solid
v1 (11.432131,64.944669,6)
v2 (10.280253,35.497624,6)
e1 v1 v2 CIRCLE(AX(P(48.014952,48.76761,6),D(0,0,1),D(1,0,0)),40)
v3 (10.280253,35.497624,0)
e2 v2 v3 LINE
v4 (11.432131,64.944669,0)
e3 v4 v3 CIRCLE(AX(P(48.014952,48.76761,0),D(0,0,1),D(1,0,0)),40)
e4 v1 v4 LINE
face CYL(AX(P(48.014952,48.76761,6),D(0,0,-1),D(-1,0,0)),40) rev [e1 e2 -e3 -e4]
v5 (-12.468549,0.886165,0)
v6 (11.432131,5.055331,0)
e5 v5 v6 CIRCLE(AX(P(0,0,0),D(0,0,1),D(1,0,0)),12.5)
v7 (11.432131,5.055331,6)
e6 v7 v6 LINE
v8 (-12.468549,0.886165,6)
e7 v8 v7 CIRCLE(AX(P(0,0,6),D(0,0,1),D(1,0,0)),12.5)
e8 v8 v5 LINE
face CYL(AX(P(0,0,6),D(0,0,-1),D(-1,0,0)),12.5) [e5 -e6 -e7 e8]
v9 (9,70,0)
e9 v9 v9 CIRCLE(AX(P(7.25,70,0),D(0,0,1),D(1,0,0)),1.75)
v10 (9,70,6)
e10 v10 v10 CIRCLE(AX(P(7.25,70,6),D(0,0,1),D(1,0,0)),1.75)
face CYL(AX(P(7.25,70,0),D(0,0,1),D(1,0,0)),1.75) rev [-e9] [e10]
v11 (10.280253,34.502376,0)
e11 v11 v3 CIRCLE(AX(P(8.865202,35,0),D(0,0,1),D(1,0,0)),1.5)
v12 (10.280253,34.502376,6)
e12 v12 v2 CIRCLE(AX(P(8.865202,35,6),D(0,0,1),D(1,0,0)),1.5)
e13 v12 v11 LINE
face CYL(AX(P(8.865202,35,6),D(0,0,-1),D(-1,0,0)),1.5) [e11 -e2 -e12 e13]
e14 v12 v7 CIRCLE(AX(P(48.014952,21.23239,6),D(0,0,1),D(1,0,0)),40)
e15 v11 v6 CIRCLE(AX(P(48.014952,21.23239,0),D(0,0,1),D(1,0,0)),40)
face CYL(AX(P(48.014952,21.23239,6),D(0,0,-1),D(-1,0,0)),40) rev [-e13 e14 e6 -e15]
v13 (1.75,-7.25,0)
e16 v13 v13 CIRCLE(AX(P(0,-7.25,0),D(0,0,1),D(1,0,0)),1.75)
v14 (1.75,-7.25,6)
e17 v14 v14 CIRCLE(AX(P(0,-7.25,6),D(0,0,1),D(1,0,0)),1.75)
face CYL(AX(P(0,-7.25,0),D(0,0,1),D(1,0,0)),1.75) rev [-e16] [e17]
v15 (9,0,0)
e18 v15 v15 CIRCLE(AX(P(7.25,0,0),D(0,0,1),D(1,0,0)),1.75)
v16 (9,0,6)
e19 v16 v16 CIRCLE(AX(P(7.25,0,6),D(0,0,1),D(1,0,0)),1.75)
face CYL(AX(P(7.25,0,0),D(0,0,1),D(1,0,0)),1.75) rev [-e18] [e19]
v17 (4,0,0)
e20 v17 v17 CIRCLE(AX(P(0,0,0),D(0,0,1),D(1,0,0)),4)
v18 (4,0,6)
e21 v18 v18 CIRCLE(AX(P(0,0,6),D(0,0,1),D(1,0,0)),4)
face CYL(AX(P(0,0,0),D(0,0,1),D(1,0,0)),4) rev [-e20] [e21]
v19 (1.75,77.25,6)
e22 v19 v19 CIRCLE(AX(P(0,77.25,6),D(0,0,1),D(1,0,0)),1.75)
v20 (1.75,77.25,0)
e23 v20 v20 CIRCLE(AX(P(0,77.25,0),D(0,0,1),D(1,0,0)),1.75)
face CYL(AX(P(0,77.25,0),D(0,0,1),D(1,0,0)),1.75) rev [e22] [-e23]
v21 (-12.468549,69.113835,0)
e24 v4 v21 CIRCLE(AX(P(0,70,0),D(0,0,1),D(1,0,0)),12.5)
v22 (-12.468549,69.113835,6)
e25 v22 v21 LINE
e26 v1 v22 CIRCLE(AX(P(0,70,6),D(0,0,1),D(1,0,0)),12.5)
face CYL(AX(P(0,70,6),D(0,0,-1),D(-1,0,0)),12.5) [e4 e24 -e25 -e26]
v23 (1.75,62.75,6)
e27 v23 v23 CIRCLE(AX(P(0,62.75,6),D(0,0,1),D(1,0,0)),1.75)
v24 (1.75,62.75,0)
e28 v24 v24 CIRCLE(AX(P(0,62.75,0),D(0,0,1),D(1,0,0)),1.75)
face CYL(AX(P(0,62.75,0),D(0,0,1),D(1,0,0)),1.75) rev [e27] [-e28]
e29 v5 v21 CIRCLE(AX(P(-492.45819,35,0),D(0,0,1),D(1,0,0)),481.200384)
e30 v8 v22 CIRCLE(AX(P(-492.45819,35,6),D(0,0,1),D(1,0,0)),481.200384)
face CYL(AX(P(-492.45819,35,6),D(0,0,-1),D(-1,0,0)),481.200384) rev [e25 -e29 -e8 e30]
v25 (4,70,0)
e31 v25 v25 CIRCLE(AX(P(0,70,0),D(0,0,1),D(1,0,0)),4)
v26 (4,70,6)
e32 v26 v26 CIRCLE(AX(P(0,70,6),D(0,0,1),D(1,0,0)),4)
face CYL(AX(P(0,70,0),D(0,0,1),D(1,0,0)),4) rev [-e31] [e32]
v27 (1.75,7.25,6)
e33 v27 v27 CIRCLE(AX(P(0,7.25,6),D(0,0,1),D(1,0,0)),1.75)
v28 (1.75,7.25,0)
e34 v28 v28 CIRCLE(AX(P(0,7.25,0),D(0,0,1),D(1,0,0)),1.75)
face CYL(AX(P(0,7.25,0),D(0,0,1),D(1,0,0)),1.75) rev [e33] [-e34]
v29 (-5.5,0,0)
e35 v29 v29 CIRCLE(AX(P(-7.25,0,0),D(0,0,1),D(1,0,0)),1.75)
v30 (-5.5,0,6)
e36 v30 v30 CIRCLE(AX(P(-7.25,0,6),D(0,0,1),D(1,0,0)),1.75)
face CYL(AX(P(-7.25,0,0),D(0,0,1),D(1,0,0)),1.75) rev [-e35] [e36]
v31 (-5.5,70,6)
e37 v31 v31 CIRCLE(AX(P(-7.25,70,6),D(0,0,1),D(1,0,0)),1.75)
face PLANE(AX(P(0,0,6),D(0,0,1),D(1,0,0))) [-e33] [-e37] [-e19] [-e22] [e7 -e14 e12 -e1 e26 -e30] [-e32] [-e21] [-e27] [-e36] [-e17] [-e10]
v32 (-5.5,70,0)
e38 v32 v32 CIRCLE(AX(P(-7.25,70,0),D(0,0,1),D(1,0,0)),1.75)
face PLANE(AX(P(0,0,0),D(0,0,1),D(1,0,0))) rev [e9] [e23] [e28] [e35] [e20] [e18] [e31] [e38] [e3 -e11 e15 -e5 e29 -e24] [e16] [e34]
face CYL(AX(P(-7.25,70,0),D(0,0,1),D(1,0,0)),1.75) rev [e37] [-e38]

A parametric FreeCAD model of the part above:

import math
import FreeCAD as App
import Part
import Sketcher

doc = App.newDocument("Part")
body = doc.addObject("PartDesign::Body", "Body")

# Sketch on XY plane
sketch1 = body.newObject("Sketcher::SketchObject", "Sketch")
sketch1.AttachmentSupport = (doc.getObject("XY_Plane"), [""])
sketch1.MapMode = "FlatFace"
sketch1.addGeometry(Part.ArcOfCircle(Part.Circle(App.Vector(48.014952, 21.23239, 0), App.Vector(0, 0, 1), 40), math.radians(160.624994), math.radians(203.855193)), False)
sketch1.addGeometry(Part.ArcOfCircle(Part.Circle(App.Vector(8.865202, 35, 0), App.Vector(0, 0, 1), 1.5), math.radians(-19.374995), math.radians(19.374996)), False)
sketch1.addGeometry(Part.ArcOfCircle(Part.Circle(App.Vector(48.014952, 48.76761, 0), App.Vector(0, 0, 1), 40), math.radians(156.144807), math.radians(199.375006)), False)
sketch1.addGeometry(Part.ArcOfCircle(Part.Circle(App.Vector(0, 70, 0), App.Vector(0, 0, 1), 12.5), math.radians(-23.855189), math.radians(184.06529)), False)
sketch1.addGeometry(Part.ArcOfCircle(Part.Circle(App.Vector(-492.45819, 35, 0), App.Vector(0, 0, 1), 481.200383), math.radians(0), math.radians(4.065291)), False)
sketch1.addGeometry(Part.ArcOfCircle(Part.Circle(App.Vector(-492.45819, 35, 0), App.Vector(0, 0, 1), 481.200384), math.radians(-4.065291), math.radians(0)), False)
sketch1.addGeometry(Part.ArcOfCircle(Part.Circle(App.Vector(0, 0, 0), App.Vector(0, 0, 1), 12.5), math.radians(175.934703), math.radians(383.855189)), False)
sketch1.addConstraint(Sketcher.Constraint("Tangent", 0, 1, 1, 1))
sketch1.addConstraint(Sketcher.Constraint("Tangent", 1, 2, 2, 2))
sketch1.addConstraint(Sketcher.Constraint("Tangent", 2, 1, 3, 1))
sketch1.addConstraint(Sketcher.Constraint("Tangent", 3, 2, 4, 2))
sketch1.addConstraint(Sketcher.Constraint("Tangent", 4, 1, 5, 2))
sketch1.addConstraint(Sketcher.Constraint("Tangent", 5, 1, 6, 1))
sketch1.addConstraint(Sketcher.Constraint("Tangent", 6, 2, 0, 2))
sketch1.addConstraint(Sketcher.Constraint("Coincident", 6, 3, -1, 1))
sketch1.addConstraint(Sketcher.Constraint("Equal", 0, 2))
sketch1.addConstraint(Sketcher.Constraint("Equal", 4, 5))
sketch1.addConstraint(Sketcher.Constraint("Equal", 3, 6))
sketch1.addConstraint(Sketcher.Constraint("PointOnObject", 3, 3, -2))
sketch1.addConstraint(Sketcher.Constraint("Horizontal", 1, 3, 4, 3))
sketch1.addConstraint(Sketcher.Constraint("Horizontal", 5, 3, 4, 1))
sketch1.addConstraint(Sketcher.Constraint("Radius", 0, 40.0))
sketch1.addConstraint(Sketcher.Constraint("Radius", 1, 1.5))
sketch1.addConstraint(Sketcher.Constraint("Radius", 3, 12.5))
sketch1.addConstraint(Sketcher.Constraint("DistanceY", -1, 1, 1, 3, 35.0))
sketch1.addConstraint(Sketcher.Constraint("Radius", 4, 481.200383))
sketch1.addConstraint(Sketcher.Constraint("DistanceX", -1, 1, 1, 3, 8.865202))
pad1 = body.newObject("PartDesign::Pad", "Pad")
pad1.Profile = sketch1
pad1.Length = 6

# Sketch on XY plane
sketch2 = body.newObject("Sketcher::SketchObject", "Sketch001")
sketch2.AttachmentSupport = (doc.getObject("XY_Plane"), [""])
sketch2.MapMode = "FlatFace"
sketch2.AttachmentOffset = App.Placement(App.Vector(0, 0, 6), App.Rotation())
sketch2.addGeometry(Part.Circle(App.Vector(0, 70, 0), App.Vector(0, 0, 1), 4), False)
sketch2.addGeometry(Part.Circle(App.Vector(0, 0, 0), App.Vector(0, 0, 1), 4), False)
sketch2.addGeometry(Part.Circle(App.Vector(0, 7.25, 0), App.Vector(0, 0, 1), 1.75), False)
sketch2.addGeometry(Part.Circle(App.Vector(7.25, 0, 0), App.Vector(0, 0, 1), 1.75), False)
sketch2.addGeometry(Part.Circle(App.Vector(0, -7.25, 0), App.Vector(0, 0, 1), 1.75), False)
sketch2.addGeometry(Part.Circle(App.Vector(-7.25, 0, 0), App.Vector(0, 0, 1), 1.75), False)
sketch2.addGeometry(Part.Circle(App.Vector(0, 77.25, 0), App.Vector(0, 0, 1), 1.75), False)
sketch2.addGeometry(Part.Circle(App.Vector(7.25, 70, 0), App.Vector(0, 0, 1), 1.75), False)
sketch2.addGeometry(Part.Circle(App.Vector(0, 62.75, 0), App.Vector(0, 0, 1), 1.75), False)
sketch2.addGeometry(Part.Circle(App.Vector(-7.25, 70, 0), App.Vector(0, 0, 1), 1.75), False)
sketch2.addConstraint(Sketcher.Constraint("Coincident", 1, 3, -1, 1))
sketch2.addConstraint(Sketcher.Constraint("Equal", 0, 1))
sketch2.addConstraint(Sketcher.Constraint("Equal", 2, 3))
sketch2.addConstraint(Sketcher.Constraint("Equal", 3, 4))
sketch2.addConstraint(Sketcher.Constraint("Equal", 4, 5))
sketch2.addConstraint(Sketcher.Constraint("Equal", 5, 6))
sketch2.addConstraint(Sketcher.Constraint("Equal", 6, 7))
sketch2.addConstraint(Sketcher.Constraint("Equal", 7, 8))
sketch2.addConstraint(Sketcher.Constraint("Equal", 8, 9))
sketch2.addConstraint(Sketcher.Constraint("Symmetric", 2, 3, 4, 3, -1, 1))
sketch2.addConstraint(Sketcher.Constraint("Symmetric", 3, 3, 5, 3, -1, 1))
sketch2.addConstraint(Sketcher.Constraint("Symmetric", 7, 3, 9, 3, -2))
sketch2.addConstraint(Sketcher.Constraint("PointOnObject", 0, 3, -2))
sketch2.addConstraint(Sketcher.Constraint("PointOnObject", 2, 3, -2))
sketch2.addConstraint(Sketcher.Constraint("PointOnObject", 3, 3, -1))
sketch2.addConstraint(Sketcher.Constraint("PointOnObject", 6, 3, -2))
sketch2.addConstraint(Sketcher.Constraint("PointOnObject", 8, 3, -2))
sketch2.addConstraint(Sketcher.Constraint("Horizontal", 0, 3, 7, 3))
sketch2.addConstraint(Sketcher.Constraint("Vertical", 3, 3, 7, 3))
sketch2.addConstraint(Sketcher.Constraint("Diameter", 0, 8.0))
sketch2.addConstraint(Sketcher.Constraint("Diameter", 2, 3.5))
sketch2.addConstraint(Sketcher.Constraint("DistanceY", -1, 1, 0, 3, 70.0))
sketch2.addConstraint(Sketcher.Constraint("DistanceY", 2, 3, 6, 3, 70.0))
sketch2.addConstraint(Sketcher.Constraint("DistanceY", 4, 3, 2, 3, 14.5))
sketch2.addConstraint(Sketcher.Constraint("DistanceX", 5, 3, 3, 3, 14.5))
sketch2.addConstraint(Sketcher.Constraint("DistanceY", 8, 3, 6, 3, 14.5))
pocket1 = body.newObject("PartDesign::Pocket", "Pocket")
pocket1.Profile = sketch2
pocket1.Type = "ThroughAll"

doc.recompute()
